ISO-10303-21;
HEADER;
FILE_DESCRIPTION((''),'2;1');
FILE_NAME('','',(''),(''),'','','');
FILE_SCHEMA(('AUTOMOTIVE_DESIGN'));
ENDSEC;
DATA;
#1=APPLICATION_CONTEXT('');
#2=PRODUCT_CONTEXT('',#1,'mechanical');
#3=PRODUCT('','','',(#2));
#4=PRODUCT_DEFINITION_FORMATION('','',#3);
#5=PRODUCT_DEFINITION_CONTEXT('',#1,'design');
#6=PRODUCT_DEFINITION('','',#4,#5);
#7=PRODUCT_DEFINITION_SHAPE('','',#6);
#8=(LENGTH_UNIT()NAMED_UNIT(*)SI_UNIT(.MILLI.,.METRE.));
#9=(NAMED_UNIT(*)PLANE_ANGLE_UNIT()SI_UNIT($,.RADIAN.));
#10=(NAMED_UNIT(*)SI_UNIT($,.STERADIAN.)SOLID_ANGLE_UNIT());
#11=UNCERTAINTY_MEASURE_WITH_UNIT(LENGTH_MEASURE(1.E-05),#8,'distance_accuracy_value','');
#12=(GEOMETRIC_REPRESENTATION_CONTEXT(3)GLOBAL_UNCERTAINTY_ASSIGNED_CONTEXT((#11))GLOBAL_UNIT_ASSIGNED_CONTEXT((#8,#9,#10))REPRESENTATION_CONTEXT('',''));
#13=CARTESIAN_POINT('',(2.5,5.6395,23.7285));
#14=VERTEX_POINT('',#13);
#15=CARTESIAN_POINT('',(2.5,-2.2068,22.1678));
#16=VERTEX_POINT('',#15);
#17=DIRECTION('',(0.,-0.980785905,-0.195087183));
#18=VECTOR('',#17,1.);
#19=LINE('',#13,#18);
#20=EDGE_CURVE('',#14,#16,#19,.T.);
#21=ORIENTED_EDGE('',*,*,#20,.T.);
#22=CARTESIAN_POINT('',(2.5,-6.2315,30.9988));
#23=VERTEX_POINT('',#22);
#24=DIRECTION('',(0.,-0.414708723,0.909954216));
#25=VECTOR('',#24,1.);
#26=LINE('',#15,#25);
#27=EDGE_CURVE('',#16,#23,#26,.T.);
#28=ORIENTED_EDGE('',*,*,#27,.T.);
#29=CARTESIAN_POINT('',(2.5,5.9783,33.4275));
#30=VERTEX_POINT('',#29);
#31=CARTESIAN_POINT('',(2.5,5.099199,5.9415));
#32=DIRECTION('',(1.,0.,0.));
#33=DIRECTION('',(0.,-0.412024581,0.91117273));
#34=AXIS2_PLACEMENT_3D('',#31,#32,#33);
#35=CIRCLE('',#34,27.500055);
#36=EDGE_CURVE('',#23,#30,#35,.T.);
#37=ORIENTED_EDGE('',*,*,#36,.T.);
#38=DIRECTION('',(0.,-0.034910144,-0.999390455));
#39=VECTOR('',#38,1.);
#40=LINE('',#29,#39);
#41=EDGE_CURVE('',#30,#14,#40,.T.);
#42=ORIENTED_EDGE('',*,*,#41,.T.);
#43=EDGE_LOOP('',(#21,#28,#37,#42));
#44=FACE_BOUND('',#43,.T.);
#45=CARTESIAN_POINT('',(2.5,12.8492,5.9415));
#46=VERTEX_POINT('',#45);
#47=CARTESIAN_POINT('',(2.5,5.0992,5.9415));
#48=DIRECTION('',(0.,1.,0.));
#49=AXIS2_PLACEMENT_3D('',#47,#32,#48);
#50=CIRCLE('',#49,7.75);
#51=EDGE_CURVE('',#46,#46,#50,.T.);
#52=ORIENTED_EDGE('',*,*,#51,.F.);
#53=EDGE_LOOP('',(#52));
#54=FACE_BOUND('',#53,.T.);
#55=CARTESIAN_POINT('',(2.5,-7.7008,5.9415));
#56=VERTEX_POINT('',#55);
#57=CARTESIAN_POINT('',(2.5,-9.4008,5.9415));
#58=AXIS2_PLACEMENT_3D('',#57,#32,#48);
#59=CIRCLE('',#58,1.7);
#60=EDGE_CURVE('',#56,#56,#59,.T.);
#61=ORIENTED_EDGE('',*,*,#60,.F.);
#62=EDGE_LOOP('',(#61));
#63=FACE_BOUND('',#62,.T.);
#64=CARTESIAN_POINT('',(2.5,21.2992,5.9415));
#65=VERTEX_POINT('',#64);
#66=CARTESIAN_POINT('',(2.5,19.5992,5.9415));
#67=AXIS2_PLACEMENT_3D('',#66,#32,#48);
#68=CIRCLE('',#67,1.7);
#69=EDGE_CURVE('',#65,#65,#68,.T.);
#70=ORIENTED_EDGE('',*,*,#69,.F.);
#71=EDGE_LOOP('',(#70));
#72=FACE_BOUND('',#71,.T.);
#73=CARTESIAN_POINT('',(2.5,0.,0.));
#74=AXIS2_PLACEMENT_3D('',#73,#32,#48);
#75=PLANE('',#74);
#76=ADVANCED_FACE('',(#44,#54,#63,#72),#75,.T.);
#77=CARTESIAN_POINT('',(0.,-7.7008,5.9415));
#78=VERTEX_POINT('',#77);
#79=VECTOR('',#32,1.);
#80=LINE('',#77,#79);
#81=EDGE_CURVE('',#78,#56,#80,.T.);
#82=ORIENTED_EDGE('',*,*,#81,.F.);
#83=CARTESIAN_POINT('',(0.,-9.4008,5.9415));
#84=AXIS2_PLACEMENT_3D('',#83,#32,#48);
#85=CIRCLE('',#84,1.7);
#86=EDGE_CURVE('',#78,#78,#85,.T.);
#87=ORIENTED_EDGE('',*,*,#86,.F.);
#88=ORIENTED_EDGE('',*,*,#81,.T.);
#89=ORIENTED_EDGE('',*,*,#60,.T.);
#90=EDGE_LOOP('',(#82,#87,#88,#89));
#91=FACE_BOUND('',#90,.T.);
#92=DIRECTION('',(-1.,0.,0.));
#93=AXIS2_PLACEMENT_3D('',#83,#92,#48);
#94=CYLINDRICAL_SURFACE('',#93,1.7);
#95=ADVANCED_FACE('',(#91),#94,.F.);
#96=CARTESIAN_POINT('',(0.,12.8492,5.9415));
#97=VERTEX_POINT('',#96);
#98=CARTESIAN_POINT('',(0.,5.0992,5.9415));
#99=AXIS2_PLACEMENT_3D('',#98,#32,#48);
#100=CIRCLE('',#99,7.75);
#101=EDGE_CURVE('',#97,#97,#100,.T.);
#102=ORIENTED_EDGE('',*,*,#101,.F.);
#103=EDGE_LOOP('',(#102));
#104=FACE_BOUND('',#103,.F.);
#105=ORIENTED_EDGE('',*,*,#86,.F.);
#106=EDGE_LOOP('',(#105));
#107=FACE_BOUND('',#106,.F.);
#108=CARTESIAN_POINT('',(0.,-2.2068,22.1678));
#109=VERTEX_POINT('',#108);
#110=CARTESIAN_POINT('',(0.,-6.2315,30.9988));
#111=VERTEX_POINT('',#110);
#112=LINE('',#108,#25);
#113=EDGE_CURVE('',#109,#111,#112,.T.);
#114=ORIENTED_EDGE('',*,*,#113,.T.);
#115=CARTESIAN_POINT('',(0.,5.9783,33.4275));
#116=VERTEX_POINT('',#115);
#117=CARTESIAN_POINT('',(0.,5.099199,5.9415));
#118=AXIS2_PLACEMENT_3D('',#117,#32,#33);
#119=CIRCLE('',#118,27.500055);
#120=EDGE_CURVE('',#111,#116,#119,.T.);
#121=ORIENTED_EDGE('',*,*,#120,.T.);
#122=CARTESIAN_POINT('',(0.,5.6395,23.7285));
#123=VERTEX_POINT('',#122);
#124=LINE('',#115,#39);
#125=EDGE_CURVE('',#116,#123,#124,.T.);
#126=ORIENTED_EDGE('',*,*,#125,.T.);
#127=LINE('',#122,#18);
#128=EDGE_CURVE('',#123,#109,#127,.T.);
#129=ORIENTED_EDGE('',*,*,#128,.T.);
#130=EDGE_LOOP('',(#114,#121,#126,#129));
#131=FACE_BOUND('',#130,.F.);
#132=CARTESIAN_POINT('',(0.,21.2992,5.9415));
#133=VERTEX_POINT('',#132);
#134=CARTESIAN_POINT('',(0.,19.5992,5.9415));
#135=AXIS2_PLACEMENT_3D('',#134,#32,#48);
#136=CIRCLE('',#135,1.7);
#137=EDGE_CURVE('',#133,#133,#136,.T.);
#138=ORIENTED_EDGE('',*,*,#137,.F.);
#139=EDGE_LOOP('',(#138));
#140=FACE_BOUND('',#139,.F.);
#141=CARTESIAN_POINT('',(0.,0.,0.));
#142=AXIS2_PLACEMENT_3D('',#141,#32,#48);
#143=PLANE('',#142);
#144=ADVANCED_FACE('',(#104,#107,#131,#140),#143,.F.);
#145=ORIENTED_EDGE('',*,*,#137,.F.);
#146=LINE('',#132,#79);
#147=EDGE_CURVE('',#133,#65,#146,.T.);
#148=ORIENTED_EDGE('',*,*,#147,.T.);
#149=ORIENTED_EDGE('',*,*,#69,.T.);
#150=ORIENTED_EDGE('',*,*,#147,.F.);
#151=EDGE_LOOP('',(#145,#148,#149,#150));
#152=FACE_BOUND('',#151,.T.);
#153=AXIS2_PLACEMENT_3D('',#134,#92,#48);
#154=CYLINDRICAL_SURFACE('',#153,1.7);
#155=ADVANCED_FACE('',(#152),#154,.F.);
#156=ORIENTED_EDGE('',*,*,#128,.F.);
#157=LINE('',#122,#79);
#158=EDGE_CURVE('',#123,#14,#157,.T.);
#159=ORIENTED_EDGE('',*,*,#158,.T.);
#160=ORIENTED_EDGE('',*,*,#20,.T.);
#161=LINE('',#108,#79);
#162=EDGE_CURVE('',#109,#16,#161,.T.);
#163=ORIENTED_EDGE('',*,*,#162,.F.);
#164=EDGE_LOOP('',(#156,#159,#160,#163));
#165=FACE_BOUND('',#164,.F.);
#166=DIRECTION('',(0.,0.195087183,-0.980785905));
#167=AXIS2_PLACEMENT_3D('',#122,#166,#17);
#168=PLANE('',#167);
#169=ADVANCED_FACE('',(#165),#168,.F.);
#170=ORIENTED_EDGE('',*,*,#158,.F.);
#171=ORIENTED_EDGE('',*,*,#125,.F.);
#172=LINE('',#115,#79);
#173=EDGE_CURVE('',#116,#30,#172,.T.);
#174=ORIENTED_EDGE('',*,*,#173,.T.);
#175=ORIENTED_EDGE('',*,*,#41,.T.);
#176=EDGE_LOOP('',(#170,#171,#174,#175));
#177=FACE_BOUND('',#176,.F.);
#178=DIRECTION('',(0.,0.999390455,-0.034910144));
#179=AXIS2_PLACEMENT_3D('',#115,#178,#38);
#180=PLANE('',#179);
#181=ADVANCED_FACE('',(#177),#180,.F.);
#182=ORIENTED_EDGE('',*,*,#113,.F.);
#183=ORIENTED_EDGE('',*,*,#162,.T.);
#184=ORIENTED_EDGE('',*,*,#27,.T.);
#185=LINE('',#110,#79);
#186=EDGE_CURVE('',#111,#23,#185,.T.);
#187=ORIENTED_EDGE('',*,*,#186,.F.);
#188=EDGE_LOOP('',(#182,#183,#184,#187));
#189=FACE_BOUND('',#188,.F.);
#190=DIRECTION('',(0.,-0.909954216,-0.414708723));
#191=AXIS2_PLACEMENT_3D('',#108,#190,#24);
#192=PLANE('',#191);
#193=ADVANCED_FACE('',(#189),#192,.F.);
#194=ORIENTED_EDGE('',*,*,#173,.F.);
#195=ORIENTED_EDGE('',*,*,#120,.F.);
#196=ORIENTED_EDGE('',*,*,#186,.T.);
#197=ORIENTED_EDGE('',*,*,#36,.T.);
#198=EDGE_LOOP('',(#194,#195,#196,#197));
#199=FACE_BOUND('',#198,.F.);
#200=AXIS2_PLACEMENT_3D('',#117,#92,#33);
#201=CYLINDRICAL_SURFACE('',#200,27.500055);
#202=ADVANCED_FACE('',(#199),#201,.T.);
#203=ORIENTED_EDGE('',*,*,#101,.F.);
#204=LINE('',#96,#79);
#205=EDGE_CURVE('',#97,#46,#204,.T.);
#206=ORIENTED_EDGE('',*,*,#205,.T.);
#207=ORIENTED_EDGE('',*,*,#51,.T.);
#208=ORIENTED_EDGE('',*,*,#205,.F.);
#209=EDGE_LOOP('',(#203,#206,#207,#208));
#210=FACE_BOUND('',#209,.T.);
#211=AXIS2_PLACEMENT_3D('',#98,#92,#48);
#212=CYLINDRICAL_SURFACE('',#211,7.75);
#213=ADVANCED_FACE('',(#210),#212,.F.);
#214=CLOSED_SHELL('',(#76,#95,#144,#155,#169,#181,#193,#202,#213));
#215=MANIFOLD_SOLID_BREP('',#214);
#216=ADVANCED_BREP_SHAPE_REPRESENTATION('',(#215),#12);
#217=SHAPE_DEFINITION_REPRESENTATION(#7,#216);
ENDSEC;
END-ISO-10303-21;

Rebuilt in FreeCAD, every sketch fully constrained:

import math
import FreeCAD as App
import Part
import Sketcher
Q = App.Units.Quantity

doc = App.newDocument("Part")
body = doc.addObject("PartDesign::Body", "Body")

# Sketch on YZ plane
sketch1 = body.newObject("Sketcher::SketchObject", "Sketch")
sketch1.AttachmentSupport = (doc.getObject("YZ_Plane"), [""])
sketch1.MapMode = "FlatFace"
sketch1.addGeometry(Part.LineSegment(App.Vector(5.6395, 23.7285, 0), App.Vector(-2.2068, 22.1678, 0)), False)
sketch1.addGeometry(Part.LineSegment(App.Vector(-2.2068, 22.1678, 0), App.Vector(-6.2315, 30.9988, 0)), False)
sketch1.addGeometry(Part.ArcOfCircle(Part.Circle(App.Vector(5.0992, 5.9415, 0), App.Vector(0, 0, 1), 27.500055), math.radians(114.332082), math.radians(448.168102)), False)
sketch1.addGeometry(Part.LineSegment(App.Vector(5.9783, 33.4275, 0), App.Vector(5.6395, 23.7285, 0)), False)
sketch1.addGeometry(Part.Circle(App.Vector(-9.4008, 5.9415, 0), App.Vector(0, 0, 1), 1.7), False)
sketch1.addGeometry(Part.Circle(App.Vector(5.0992, 5.9415, 0), App.Vector(0, 0, 1), 7.75), False)
sketch1.addGeometry(Part.Circle(App.Vector(19.5992, 5.9415, 0), App.Vector(0, 0, 1), 1.7), False)
sketch1.addConstraint(Sketcher.Constraint("Coincident", 0, 2, 1, 1))
sketch1.addConstraint(Sketcher.Constraint("Coincident", 1, 2, 2, 1))
sketch1.addConstraint(Sketcher.Constraint("Coincident", 2, 2, 3, 1))
sketch1.addConstraint(Sketcher.Constraint("Coincident", 3, 2, 0, 1))
sketch1.addConstraint(Sketcher.Constraint("Coincident", 5, 3, 2, 3))
sketch1.addConstraint(Sketcher.Constraint("Equal", 4, 6))
sketch1.addConstraint(Sketcher.Constraint("Horizontal", 2, 3, 4, 3))
sketch1.addConstraint(Sketcher.Constraint("Horizontal", 5, 3, 6, 3))
sketch1.addConstraint(Sketcher.Constraint("Equal", 1, 3))
sketch1.addConstraint(Sketcher.Constraint("Diameter", 4, Q("3.4 mm")))
sketch1.addConstraint(Sketcher.Constraint("Diameter", 5, Q("15.5 mm")))
sketch1.addConstraint(Sketcher.Constraint("Radius", 2, Q("27.5 mm")))
sketch1.addConstraint(Sketcher.Constraint("Angle", 3, Q("-92.0006 deg")))
sketch1.addConstraint(Sketcher.Constraint("Distance", 0, Q("8 mm")))
sketch1.addConstraint(Sketcher.Constraint("Angle", 1, Q("114.501 deg")))
sketch1.addConstraint(Sketcher.Constraint("DistanceX", 4, 3, 6, 3, Q("29 mm")))
sketch1.addConstraint(Sketcher.Constraint("Angle", 0, Q("-168.7502 deg")))
sketch1.addConstraint(Sketcher.Constraint("DistanceX", 4, 3, 2, 3, Q("14.5 mm")))
sketch1.addConstraint(Sketcher.Constraint("Distance", 1, Q("9.705 mm")))
sketch1.addConstraint(Sketcher.Constraint("DistanceX", -1, 1, 2, 3, Q("5.0992 mm")))
sketch1.addConstraint(Sketcher.Constraint("DistanceY", -1, 1, 2, 3, Q("5.9415 mm")))
pad1 = body.newObject("PartDesign::Pad", "Pad")
pad1.Profile = sketch1
pad1.Length = 2.5

doc.recompute()
